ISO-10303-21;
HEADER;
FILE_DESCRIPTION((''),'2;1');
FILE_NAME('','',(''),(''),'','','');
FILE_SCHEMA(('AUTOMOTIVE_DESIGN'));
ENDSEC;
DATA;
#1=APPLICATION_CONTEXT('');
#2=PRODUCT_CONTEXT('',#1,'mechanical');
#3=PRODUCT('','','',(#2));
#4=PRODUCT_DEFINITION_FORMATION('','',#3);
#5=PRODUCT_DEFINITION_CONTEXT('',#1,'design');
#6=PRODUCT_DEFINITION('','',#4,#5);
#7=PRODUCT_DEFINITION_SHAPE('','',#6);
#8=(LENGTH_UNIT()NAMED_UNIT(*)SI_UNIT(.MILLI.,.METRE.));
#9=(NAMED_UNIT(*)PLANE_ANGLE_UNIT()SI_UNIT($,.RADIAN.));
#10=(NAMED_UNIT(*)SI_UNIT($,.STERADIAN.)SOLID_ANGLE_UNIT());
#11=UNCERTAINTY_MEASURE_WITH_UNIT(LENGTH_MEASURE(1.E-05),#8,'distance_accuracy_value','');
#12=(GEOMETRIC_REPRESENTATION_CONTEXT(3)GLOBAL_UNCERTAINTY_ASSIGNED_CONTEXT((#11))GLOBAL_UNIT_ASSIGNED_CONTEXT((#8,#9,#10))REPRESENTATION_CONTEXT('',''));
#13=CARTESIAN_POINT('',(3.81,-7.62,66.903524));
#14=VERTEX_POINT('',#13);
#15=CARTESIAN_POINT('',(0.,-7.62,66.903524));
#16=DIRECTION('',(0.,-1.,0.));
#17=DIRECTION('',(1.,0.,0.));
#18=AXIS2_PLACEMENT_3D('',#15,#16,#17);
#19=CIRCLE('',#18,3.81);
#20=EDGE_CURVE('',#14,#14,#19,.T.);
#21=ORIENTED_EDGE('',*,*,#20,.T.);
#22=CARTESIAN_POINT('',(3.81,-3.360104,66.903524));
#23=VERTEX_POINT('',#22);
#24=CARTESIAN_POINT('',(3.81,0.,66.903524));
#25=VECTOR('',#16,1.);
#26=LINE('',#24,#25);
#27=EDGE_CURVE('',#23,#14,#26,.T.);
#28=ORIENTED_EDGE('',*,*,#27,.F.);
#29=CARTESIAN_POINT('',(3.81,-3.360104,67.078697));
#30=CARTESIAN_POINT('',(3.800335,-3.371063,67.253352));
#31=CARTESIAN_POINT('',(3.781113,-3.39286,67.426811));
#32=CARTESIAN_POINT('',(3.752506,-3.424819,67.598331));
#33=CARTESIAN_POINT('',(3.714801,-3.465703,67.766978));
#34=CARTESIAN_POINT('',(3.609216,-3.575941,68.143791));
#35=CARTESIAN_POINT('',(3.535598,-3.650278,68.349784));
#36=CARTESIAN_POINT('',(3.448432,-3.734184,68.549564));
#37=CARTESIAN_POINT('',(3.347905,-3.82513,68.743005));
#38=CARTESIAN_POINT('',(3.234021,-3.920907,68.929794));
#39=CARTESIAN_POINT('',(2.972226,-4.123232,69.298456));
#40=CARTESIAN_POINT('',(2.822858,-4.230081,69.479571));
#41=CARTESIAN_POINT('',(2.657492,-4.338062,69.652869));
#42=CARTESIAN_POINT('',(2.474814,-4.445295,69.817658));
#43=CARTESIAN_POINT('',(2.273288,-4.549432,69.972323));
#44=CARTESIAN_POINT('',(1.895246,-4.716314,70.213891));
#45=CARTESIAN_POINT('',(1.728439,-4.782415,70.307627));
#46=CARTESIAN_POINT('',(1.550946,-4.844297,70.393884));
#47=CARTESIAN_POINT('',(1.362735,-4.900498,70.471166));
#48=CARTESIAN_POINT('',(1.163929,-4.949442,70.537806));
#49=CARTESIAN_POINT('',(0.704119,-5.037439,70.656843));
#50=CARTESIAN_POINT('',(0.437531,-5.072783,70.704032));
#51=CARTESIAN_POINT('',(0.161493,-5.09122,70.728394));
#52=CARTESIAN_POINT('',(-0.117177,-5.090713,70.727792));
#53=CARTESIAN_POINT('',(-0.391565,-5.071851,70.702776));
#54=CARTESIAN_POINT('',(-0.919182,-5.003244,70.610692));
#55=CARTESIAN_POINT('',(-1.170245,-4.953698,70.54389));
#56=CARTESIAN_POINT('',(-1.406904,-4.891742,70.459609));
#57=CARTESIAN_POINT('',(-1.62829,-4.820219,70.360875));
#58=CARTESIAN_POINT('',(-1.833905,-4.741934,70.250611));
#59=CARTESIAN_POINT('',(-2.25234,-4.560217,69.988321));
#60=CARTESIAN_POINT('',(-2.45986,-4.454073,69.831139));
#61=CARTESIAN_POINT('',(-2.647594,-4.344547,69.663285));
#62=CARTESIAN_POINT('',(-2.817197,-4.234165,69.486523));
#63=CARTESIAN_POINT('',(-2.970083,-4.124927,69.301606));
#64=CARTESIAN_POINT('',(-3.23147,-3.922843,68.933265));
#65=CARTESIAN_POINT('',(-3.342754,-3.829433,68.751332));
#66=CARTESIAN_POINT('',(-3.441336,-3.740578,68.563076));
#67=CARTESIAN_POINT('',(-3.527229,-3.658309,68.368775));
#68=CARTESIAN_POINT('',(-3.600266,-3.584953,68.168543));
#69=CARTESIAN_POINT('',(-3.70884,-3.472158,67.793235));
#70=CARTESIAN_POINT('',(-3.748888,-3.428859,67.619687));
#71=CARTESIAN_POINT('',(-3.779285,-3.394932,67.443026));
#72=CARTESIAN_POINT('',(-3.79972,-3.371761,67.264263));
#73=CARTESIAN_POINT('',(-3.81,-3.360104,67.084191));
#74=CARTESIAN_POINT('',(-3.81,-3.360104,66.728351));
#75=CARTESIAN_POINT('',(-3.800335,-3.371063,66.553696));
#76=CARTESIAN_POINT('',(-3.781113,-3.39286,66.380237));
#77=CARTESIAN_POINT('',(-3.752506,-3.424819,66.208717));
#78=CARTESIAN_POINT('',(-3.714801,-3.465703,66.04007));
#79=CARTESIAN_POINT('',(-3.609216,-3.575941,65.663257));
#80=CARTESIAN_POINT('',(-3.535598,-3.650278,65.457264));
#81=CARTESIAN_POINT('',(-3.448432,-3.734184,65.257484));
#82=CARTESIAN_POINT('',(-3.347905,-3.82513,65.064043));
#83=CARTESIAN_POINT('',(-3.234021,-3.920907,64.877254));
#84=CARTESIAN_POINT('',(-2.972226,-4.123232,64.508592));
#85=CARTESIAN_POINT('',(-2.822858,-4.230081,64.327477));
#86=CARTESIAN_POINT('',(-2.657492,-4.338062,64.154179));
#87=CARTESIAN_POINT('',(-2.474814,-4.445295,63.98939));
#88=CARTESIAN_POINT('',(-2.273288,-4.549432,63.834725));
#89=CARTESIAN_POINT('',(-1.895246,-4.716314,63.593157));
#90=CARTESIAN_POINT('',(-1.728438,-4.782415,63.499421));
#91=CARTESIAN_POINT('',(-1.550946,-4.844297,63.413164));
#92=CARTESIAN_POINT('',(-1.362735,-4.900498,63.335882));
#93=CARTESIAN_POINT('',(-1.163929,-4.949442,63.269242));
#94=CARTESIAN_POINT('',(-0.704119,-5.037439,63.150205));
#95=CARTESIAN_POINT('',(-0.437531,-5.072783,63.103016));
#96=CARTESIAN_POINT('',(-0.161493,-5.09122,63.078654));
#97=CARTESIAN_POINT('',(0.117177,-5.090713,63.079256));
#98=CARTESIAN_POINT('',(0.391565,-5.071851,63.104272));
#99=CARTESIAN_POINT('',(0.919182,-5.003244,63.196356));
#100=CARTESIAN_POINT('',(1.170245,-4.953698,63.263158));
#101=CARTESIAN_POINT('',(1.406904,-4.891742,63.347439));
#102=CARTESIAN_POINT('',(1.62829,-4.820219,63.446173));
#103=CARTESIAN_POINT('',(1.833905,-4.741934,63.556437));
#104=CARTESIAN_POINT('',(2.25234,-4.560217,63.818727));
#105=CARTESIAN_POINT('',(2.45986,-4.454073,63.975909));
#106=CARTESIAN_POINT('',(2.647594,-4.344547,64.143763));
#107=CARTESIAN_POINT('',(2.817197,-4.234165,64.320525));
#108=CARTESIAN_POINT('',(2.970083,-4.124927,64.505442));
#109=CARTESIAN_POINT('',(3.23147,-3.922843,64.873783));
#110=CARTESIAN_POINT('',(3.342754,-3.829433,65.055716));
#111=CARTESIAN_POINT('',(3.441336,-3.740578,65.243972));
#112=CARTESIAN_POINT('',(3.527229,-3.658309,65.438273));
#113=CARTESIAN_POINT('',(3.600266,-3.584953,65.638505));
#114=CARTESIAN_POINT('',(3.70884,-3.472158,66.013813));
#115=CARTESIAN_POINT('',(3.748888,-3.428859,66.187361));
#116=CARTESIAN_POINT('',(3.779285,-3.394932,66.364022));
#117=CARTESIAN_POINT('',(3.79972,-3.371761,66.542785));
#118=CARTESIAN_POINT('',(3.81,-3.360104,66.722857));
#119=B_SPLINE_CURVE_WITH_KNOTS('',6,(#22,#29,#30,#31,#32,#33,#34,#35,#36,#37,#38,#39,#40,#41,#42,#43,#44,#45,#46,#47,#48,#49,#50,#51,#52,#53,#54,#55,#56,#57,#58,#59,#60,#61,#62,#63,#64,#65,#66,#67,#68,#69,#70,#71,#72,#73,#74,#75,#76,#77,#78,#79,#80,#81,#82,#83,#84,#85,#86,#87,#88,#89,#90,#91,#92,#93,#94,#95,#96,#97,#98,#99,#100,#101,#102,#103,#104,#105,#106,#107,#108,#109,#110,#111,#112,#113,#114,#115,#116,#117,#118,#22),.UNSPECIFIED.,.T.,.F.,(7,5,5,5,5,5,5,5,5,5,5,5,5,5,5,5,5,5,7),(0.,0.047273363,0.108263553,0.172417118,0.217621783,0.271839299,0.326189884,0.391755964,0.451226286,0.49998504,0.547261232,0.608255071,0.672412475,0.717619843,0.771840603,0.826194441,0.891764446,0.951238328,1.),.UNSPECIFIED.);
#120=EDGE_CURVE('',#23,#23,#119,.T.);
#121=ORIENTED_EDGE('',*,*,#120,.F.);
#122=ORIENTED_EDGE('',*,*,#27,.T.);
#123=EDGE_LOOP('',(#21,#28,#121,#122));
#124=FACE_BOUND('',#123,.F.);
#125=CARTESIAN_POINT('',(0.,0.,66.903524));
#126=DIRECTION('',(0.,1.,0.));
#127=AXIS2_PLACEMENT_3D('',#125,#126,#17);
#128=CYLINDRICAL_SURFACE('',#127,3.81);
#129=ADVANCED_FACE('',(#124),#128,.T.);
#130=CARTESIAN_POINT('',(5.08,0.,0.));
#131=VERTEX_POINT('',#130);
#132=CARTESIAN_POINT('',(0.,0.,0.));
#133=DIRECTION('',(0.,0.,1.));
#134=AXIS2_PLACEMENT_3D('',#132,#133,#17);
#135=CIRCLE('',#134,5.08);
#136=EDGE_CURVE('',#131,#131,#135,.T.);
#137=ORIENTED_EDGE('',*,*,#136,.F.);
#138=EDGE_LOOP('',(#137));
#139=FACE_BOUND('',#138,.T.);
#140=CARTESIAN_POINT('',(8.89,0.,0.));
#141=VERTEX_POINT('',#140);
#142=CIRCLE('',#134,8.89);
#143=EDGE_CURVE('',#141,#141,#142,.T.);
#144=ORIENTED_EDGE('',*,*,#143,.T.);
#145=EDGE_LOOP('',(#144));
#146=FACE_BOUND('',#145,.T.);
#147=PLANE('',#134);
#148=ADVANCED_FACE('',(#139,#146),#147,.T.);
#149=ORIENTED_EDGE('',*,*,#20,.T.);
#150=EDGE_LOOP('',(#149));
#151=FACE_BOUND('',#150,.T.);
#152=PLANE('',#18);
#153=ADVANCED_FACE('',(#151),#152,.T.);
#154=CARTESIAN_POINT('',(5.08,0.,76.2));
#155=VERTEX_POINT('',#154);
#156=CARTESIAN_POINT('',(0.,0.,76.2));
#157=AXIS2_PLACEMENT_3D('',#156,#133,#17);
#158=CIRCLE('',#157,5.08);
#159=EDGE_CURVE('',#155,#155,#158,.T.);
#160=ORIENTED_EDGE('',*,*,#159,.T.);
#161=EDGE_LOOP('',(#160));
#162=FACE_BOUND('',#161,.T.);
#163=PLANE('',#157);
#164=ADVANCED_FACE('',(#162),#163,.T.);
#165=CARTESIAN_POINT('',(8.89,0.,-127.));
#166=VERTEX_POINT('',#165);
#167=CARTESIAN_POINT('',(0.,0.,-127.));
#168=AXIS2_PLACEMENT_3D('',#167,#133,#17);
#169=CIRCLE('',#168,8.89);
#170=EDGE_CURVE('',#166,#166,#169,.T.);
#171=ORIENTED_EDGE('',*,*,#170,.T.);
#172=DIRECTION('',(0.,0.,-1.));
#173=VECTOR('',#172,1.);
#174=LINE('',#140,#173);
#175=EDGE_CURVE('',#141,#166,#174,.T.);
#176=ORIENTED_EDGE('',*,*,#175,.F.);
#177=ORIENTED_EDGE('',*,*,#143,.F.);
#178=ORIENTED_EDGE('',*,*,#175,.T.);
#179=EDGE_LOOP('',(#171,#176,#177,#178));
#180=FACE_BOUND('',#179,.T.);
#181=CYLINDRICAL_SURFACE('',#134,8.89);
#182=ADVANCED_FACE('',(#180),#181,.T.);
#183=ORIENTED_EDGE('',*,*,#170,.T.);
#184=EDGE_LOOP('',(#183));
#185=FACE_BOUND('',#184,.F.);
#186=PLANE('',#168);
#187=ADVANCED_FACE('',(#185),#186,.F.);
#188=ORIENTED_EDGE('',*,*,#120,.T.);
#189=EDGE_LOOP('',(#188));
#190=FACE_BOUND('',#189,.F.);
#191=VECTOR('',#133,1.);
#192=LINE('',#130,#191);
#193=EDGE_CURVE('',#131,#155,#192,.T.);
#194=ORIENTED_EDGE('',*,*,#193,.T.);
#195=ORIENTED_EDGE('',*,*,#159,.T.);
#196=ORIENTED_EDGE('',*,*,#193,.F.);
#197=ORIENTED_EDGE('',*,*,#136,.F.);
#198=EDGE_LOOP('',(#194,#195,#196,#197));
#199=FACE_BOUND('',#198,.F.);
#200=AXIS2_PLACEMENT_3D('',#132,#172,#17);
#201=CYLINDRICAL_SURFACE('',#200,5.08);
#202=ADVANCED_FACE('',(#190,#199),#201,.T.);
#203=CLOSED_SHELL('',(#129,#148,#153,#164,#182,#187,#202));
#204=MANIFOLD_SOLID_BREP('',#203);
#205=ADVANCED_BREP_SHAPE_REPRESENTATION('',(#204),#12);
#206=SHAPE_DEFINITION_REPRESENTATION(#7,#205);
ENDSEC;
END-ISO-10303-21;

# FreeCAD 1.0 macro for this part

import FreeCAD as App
import Part
import Sketcher
from FreeCAD import Vector
Q = App.Units.Quantity

doc = App.newDocument("Part")
body = doc.addObject("PartDesign::Body", "Body")

sketch1 = body.newObject("Sketcher::SketchObject", "Sketch")
sketch1.AttachmentSupport = (doc.getObject("XY_Plane"), [""])
sketch1.MapMode = "FlatFace"
sketch1.addGeometry(Part.Circle(Vector(0, 0, 0), Vector(0, 0, 1), 9), False)
sketch1.addConstraint([
    Sketcher.Constraint("Coincident", 0, 3, -1, 1),
    Sketcher.Constraint("Diameter", 0, Q("0.7 in")),
])
pad1 = body.newObject("PartDesign::Pad", "Pad")
pad1.Profile = sketch1
pad1.Length = Q("5 in")
pad1.Reversed = True

sketch2 = body.newObject("Sketcher::SketchObject", "Sketch001")
sketch2.AttachmentSupport = (doc.getObject("XY_Plane"), [""])
sketch2.MapMode = "FlatFace"
sketch2.addGeometry(Part.Circle(Vector(0, 0, 0), Vector(0, 0, 1), 5), False)
sketch2.addConstraint([
    Sketcher.Constraint("Coincident", 0, 3, -1, 1),
    Sketcher.Constraint("Diameter", 0, Q("0.4 in")),
])
pad2 = body.newObject("PartDesign::Pad", "Pad001")
pad2.Profile = sketch2
pad2.Length = Q("3 in")

sketch3 = body.newObject("Sketcher::SketchObject", "Sketch002")
sketch3.AttachmentSupport = (doc.getObject("XZ_Plane"), [""])
sketch3.MapMode = "FlatFace"
sketch3.addGeometry(Part.Circle(Vector(0, 66.9, 0), Vector(0, 0, 1), 3.8), False)
sketch3.addConstraint([
    Sketcher.Constraint("PointOnObject", 0, 3, -2),
    Sketcher.Constraint("Diameter", 0, Q("0.3 in")),
    Sketcher.Constraint("DistanceY", -1, 1, 0, 3, 66.903524),
])
pad3 = body.newObject("PartDesign::Pad", "Pad002")
pad3.Profile = sketch3
pad3.Length = Q("0.3 in")

doc.recompute()
